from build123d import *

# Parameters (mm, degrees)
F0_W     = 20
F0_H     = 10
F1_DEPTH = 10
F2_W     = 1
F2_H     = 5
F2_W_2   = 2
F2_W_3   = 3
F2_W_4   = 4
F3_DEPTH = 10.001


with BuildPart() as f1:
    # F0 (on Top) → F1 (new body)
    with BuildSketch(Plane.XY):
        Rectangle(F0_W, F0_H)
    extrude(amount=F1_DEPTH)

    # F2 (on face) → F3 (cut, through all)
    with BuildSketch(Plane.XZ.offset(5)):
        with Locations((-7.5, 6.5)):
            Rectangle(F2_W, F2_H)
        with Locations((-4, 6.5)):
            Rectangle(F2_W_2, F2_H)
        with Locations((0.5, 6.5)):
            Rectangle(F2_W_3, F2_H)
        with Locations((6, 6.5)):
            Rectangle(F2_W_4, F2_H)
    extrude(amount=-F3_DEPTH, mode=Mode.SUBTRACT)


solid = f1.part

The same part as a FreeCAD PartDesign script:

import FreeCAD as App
import Part
import Sketcher
Q = App.Units.Quantity


def add_polygon(sketch, points):
    """Adds a closed chain of lines whose ends are joined by coincident constraints."""
    first, n = sketch.GeometryCount, len(points)
    for a, b in zip(points, points[1:] + points[:1]):
        sketch.addGeometry(Part.LineSegment(App.Vector(*a, 0), App.Vector(*b, 0)), False)
    for i in range(n):
        sketch.addConstraint(Sketcher.Constraint("Coincident", first + i, 2, first + (i + 1) % n, 1))

doc = App.newDocument("Part")
body = doc.addObject("PartDesign::Body", "Body")

# Sketch on XY plane
sketch1 = body.newObject("Sketcher::SketchObject", "Sketch")
sketch1.AttachmentSupport = (doc.getObject("XY_Plane"), [""])
sketch1.MapMode = "FlatFace"
add_polygon(sketch1, [(-10, 5), (-10, -5), (10, -5), (10, 5)])  # lines 0-3
sketch1.addConstraint(Sketcher.Constraint("Vertical", 0))
sketch1.addConstraint(Sketcher.Constraint("Horizontal", 1))
sketch1.addConstraint(Sketcher.Constraint("Vertical", 2))
sketch1.addConstraint(Sketcher.Constraint("Horizontal", 3))
sketch1.addConstraint(Sketcher.Constraint("Symmetric", 0, 2, 2, 2, -1, 1))
sketch1.addConstraint(Sketcher.Constraint("DistanceX", 1, 1, 1, 2, Q("20 mm")))
sketch1.addConstraint(Sketcher.Constraint("DistanceY", 0, 2, 0, 1, Q("10 mm")))
pad1 = body.newObject("PartDesign::Pad", "Pad")
pad1.Profile = sketch1
pad1.Length = 10

# Sketch on XZ plane
sketch2 = body.newObject("Sketcher::SketchObject", "Sketch001")
sketch2.AttachmentSupport = (doc.getObject("XZ_Plane"), [""])
sketch2.MapMode = "FlatFace"
sketch2.AttachmentOffset = App.Placement(App.Vector(0, 0, 5), App.Rotation())
add_polygon(sketch2, [(-8, 9), (-8, 4), (-7, 4), (-7, 9)])  # lines 0-3
add_polygon(sketch2, [(-5, 9), (-5, 4), (-3, 4), (-3, 9)])  # lines 4-7
add_polygon(sketch2, [(-1, 9), (-1, 4), (2, 4), (2, 9)])  # lines 8-11
add_polygon(sketch2, [(4, 9), (4, 4), (8, 4), (8, 9)])  # lines 12-15
sketch2.addConstraint(Sketcher.Constraint("Vertical", 0))
sketch2.addConstraint(Sketcher.Constraint("Horizontal", 1))
sketch2.addConstraint(Sketcher.Constraint("Vertical", 2))
sketch2.addConstraint(Sketcher.Constraint("Horizontal", 3))
sketch2.addConstraint(Sketcher.Constraint("Vertical", 4))
sketch2.addConstraint(Sketcher.Constraint("Horizontal", 5))
sketch2.addConstraint(Sketcher.Constraint("Vertical", 6))
sketch2.addConstraint(Sketcher.Constraint("Horizontal", 7))
sketch2.addConstraint(Sketcher.Constraint("Vertical", 8))
sketch2.addConstraint(Sketcher.Constraint("Horizontal", 9))
sketch2.addConstraint(Sketcher.Constraint("Vertical", 10))
sketch2.addConstraint(Sketcher.Constraint("Horizontal", 11))
sketch2.addConstraint(Sketcher.Constraint("Vertical", 12))
sketch2.addConstraint(Sketcher.Constraint("Horizontal", 13))
sketch2.addConstraint(Sketcher.Constraint("Vertical", 14))
sketch2.addConstraint(Sketcher.Constraint("Horizontal", 15))
sketch2.addConstraint(Sketcher.Constraint("Symmetric", 0, 2, 13, 2, -2))
sketch2.addConstraint(Sketcher.Constraint("Horizontal", 1, 2, 4, 2))
sketch2.addConstraint(Sketcher.Constraint("Horizontal", 3, 2, 6, 2))
sketch2.addConstraint(Sketcher.Constraint("Horizontal", 5, 2, 8, 2))
sketch2.addConstraint(Sketcher.Constraint("Horizontal", 7, 2, 10, 2))
sketch2.addConstraint(Sketcher.Constraint("Horizontal", 11, 2, 14, 2))
sketch2.addConstraint(Sketcher.Constraint("DistanceX", 1, 1, 1, 2, Q("1 mm")))
sketch2.addConstraint(Sketcher.Constraint("DistanceX", 5, 1, 5, 2, Q("2 mm")))
sketch2.addConstraint(Sketcher.Constraint("DistanceX", 9, 1, 9, 2, Q("3 mm")))
sketch2.addConstraint(Sketcher.Constraint("DistanceX", 13, 1, 13, 2, Q("4 mm")))
sketch2.addConstraint(Sketcher.Constraint("DistanceY", 0, 2, 0, 1, Q("5 mm")))
sketch2.addConstraint(Sketcher.Constraint("DistanceX", 0, 2, -1, 1, Q("8 mm")))
sketch2.addConstraint(Sketcher.Constraint("DistanceY", -1, 1, 0, 2, Q("4 mm")))
sketch2.addConstraint(Sketcher.Constraint("DistanceX", 4, 2, -1, 1, Q("5 mm")))
sketch2.addConstraint(Sketcher.Constraint("DistanceX", 8, 2, -1, 1, Q("1 mm")))
pocket1 = body.newObject("PartDesign::Pocket", "Pocket")
pocket1.Profile = sketch2
pocket1.Type = "ThroughAll"

doc.recompute()
